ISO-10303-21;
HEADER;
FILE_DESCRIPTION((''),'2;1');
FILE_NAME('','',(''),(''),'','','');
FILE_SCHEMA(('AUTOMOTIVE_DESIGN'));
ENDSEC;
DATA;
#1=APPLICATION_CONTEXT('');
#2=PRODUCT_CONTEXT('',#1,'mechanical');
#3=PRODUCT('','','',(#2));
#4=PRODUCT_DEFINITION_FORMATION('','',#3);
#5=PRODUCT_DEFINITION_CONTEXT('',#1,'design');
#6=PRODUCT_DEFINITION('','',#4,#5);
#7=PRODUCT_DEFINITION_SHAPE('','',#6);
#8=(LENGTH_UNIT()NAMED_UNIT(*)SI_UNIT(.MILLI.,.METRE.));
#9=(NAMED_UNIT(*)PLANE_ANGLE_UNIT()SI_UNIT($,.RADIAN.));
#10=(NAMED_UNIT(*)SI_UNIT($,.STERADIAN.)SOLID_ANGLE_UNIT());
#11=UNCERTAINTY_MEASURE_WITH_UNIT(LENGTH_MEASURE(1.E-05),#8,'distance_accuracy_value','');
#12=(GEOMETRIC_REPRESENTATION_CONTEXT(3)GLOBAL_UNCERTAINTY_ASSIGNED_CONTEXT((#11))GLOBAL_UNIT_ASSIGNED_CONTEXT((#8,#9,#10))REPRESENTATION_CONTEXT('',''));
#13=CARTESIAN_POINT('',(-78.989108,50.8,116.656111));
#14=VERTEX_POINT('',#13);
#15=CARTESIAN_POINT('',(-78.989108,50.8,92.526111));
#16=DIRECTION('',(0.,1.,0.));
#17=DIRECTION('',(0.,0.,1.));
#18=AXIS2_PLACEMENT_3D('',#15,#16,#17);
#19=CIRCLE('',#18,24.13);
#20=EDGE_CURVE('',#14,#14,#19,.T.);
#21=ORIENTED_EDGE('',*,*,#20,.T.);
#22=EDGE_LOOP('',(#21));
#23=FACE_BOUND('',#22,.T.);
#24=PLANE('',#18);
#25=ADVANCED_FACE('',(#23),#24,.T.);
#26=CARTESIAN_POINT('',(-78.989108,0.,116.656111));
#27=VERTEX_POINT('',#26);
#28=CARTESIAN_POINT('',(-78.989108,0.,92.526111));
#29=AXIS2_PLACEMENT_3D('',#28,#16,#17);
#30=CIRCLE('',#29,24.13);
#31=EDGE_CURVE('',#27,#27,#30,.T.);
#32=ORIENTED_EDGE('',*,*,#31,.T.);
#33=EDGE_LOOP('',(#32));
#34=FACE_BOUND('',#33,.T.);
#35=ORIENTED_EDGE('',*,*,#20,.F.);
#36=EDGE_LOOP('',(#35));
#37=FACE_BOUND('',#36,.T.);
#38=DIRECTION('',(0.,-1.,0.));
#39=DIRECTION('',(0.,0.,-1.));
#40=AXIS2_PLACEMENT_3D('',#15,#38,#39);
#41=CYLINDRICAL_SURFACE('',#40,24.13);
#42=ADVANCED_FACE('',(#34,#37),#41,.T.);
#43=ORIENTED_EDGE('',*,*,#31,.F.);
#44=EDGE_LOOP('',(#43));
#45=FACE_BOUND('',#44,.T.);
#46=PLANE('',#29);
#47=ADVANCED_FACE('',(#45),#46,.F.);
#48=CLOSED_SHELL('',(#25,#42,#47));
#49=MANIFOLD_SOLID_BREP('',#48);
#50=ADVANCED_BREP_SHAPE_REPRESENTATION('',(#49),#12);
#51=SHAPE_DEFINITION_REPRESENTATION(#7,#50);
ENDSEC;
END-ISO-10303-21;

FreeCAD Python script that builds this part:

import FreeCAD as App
import Part
import Sketcher

V = App.Vector
Q = App.Units.Quantity

doc = App.newDocument("Part")
body = doc.addObject("PartDesign::Body", "Body")

sketch1 = doc.addObject("Sketcher::SketchObject", "Sketch")
body.addObject(sketch1)
sketch1.AttachmentSupport = (doc.XZ_Plane, [""])
sketch1.MapMode = "FlatFace"
sketch1.addGeometry(Part.Circle(V(-79, 93, 0), V(0, 0, 1), 24), False)
sketch1.addConstraint(Sketcher.Constraint("Diameter", 0, Q("1.9 in")))
sketch1.addConstraint(Sketcher.Constraint("DistanceX", 0, 3, -1, 1, 78.989108))
sketch1.addConstraint(Sketcher.Constraint("DistanceY", -1, 1, 0, 3, 92.526111))
pad1 = doc.addObject("PartDesign::Pad", "Pad")
body.addObject(pad1)
pad1.Profile = sketch1
pad1.Length = Q("2 in")
pad1.Reversed = True

doc.recompute()
